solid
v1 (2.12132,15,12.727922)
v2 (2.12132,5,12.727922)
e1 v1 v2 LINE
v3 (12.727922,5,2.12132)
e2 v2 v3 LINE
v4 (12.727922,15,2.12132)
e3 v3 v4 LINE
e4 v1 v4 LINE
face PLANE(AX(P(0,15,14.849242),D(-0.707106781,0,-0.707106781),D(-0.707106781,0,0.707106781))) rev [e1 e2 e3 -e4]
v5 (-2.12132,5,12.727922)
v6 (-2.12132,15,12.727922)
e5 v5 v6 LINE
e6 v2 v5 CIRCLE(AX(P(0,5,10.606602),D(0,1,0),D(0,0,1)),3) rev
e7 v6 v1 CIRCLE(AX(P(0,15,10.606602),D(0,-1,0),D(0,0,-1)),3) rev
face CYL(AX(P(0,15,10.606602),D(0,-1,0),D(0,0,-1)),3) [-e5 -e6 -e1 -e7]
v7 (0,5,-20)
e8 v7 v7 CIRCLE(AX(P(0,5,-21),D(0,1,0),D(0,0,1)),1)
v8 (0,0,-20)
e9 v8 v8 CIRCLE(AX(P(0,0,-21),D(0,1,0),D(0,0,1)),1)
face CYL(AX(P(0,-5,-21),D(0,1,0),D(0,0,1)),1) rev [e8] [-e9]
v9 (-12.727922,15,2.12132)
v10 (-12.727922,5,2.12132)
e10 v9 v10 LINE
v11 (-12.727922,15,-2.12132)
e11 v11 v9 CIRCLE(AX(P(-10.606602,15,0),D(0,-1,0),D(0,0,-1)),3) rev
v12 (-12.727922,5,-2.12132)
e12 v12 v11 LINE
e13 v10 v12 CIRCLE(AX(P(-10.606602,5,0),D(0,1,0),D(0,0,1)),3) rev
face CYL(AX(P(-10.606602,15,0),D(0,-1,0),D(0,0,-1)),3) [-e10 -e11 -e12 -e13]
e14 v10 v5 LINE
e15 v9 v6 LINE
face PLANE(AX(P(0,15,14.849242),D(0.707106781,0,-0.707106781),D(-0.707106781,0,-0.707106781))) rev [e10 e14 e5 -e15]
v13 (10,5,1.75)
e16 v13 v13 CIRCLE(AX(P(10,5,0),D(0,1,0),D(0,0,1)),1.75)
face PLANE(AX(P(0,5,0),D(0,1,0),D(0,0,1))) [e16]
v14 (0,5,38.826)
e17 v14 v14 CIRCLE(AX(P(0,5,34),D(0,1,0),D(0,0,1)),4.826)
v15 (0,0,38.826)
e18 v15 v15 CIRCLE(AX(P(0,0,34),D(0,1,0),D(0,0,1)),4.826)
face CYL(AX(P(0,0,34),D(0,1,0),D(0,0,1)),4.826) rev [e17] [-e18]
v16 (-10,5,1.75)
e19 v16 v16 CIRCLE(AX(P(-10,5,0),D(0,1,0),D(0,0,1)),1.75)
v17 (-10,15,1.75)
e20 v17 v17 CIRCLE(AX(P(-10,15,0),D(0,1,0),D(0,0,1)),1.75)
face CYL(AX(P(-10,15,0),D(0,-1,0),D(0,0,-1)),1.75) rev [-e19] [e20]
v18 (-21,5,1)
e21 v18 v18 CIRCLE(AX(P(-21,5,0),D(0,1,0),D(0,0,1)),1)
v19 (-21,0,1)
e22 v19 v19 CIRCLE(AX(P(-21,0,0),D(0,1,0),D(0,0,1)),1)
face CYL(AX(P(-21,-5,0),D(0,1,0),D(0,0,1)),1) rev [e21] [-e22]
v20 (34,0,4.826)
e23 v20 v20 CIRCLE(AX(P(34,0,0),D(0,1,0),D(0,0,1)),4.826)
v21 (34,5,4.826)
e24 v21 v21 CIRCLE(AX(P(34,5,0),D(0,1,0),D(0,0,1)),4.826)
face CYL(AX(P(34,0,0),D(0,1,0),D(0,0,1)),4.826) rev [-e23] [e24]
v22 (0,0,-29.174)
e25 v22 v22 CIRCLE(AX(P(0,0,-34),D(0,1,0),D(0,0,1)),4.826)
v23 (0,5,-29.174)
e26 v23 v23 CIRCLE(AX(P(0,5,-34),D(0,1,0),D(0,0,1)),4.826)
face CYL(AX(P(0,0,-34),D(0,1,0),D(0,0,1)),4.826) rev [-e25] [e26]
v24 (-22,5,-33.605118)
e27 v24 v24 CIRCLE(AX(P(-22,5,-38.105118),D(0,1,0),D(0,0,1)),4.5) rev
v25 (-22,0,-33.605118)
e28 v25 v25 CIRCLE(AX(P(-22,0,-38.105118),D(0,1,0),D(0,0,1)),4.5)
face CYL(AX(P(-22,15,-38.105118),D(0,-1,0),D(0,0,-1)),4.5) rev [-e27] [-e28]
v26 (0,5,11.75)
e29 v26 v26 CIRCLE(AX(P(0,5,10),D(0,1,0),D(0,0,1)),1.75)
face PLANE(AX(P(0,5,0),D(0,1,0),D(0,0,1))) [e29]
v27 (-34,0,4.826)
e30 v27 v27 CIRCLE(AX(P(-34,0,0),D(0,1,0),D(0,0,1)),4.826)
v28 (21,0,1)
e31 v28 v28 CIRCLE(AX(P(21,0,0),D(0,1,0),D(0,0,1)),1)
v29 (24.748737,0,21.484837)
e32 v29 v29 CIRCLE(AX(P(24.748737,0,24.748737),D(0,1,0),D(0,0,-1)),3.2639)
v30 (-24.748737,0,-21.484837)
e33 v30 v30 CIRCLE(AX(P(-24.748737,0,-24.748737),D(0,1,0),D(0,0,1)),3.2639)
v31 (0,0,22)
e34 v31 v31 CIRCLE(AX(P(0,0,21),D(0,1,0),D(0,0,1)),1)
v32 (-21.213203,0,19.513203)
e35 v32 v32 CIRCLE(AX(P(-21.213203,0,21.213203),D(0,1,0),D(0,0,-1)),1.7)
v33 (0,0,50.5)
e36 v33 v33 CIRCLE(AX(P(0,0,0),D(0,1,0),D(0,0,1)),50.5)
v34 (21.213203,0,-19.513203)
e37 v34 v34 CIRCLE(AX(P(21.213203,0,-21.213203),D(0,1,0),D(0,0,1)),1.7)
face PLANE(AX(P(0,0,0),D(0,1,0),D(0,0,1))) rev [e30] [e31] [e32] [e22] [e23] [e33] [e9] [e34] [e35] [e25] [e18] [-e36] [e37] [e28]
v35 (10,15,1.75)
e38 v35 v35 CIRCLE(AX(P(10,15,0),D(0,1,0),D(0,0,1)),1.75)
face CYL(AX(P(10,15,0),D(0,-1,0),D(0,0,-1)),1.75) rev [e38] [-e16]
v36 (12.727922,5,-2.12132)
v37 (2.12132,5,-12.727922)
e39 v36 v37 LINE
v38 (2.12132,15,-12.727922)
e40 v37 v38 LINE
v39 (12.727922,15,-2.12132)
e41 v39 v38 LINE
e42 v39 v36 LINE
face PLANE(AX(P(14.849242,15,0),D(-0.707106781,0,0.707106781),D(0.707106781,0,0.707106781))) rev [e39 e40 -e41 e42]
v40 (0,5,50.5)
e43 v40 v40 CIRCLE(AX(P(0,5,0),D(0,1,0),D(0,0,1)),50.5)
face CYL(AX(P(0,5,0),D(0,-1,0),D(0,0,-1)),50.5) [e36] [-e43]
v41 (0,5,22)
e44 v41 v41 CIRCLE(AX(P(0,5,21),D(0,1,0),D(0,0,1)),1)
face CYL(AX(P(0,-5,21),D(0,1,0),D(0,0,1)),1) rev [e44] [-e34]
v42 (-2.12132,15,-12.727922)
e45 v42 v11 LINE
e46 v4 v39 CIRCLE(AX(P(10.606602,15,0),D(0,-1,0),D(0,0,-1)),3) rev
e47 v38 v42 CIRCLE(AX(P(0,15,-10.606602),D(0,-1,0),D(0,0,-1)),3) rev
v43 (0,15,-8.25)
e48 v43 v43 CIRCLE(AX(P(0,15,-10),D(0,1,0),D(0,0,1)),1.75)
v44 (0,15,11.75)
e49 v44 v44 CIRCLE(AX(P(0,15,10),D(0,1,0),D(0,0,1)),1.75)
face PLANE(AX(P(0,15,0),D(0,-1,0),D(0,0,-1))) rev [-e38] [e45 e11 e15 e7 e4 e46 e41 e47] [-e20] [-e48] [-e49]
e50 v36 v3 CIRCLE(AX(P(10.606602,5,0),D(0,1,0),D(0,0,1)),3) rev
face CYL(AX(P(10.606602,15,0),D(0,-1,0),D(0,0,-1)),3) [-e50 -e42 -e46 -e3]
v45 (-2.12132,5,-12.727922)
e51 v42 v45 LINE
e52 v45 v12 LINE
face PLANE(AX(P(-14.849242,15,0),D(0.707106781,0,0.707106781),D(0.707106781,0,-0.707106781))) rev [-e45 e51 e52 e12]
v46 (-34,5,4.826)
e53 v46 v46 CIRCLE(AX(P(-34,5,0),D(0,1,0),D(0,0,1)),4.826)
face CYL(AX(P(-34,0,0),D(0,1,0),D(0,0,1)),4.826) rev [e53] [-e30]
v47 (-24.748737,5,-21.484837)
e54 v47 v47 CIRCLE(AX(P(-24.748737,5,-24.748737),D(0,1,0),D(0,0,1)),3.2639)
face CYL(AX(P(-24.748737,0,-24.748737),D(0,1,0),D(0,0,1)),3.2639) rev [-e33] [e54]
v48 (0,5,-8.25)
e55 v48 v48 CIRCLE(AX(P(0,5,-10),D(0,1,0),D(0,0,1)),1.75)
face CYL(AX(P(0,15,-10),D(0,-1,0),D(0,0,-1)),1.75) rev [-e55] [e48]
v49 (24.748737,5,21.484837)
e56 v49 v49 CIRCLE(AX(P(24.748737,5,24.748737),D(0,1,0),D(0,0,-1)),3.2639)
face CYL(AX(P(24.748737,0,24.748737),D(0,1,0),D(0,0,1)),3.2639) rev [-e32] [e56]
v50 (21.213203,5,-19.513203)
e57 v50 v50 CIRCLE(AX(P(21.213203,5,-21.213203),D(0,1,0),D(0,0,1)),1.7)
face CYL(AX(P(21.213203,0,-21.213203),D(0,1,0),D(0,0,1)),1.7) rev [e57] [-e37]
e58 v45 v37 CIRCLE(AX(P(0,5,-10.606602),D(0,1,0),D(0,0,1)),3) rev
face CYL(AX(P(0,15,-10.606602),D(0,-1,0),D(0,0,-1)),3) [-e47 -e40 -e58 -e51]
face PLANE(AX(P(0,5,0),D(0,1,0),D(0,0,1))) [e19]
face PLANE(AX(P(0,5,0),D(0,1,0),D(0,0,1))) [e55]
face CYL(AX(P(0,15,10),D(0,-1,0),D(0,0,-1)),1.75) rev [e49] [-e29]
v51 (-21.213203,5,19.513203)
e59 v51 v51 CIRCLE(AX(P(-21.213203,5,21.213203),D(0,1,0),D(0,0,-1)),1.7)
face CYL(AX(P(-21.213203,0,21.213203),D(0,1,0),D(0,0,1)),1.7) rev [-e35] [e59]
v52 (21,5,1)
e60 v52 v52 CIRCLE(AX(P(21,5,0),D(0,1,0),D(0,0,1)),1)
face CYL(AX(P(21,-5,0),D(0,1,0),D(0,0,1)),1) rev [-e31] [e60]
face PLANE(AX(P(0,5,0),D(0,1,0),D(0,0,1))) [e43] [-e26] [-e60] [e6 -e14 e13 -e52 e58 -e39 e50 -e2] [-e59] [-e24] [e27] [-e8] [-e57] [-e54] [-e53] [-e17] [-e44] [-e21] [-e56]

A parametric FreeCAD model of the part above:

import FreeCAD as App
import Part
import Sketcher

V = App.Vector
Q = App.Units.Quantity


def edges_at(feature, points):
    """Names of the edges that pass closest to the given points."""
    edges = feature.Shape.Edges
    near = lambda p: min(range(len(edges)), key=lambda i: edges[i].distToShape(Part.Vertex(*p))[0])
    return sorted({f"Edge{near(p) + 1}" for p in points})

doc = App.newDocument("Part")
body = doc.addObject("PartDesign::Body", "Body")

# Sketch on XZ plane
sketch1 = body.newObject("Sketcher::SketchObject", "Sketch")
sketch1.AttachmentSupport = (doc.getObject("XZ_Plane"), [""])
sketch1.MapMode = "FlatFace"
sketch1.addGeometry(Part.Circle(V(0, 0, 0), V(0, 0, 1), 50), False)
sketch1.addConstraint([
    Sketcher.Constraint("Coincident", 0, 3, -1, 1),
    Sketcher.Constraint("Diameter", 0, Q("101 mm")),
])
pad1 = body.newObject("PartDesign::Pad", "Pad")
pad1.Profile = sketch1
pad1.Length = 5
pad1.Reversed = True

# Sketch on XZ plane
sketch2 = body.newObject("Sketcher::SketchObject", "Sketch001")
sketch2.AttachmentSupport = (doc.getObject("XZ_Plane"), [""])
sketch2.MapMode = "FlatFace"
sketch2.AttachmentOffset = App.Placement(V(0, 0, -5), App.Rotation())
sketch2.addGeometry([
    Part.LineSegment(V(0, 14.8, 0), V(14.8, 0, 0)),  # 0
    Part.LineSegment(V(14.8, 0, 0), V(0, -14.8, 0)),  # 1
    Part.LineSegment(V(0, -14.8, 0), V(-14.8, 0, 0)),  # 2
    Part.LineSegment(V(-14.8, 0, 0), V(0, 14.8, 0)),  # 3
    Part.Circle(V(0, 10, 0), V(0, 0, 1), 1.8),  # 4
    Part.Circle(V(-10, 0, 0), V(0, 0, 1), 1.8),  # 5
    Part.Circle(V(10, 0, 0), V(0, 0, 1), 1.8),  # 6
    Part.Circle(V(0, -10, 0), V(0, 0, 1), 1.8),  # 7
], False)
sketch2.addConstraint([
    Sketcher.Constraint("Coincident", 0, 2, 1, 1),
    Sketcher.Constraint("Coincident", 1, 2, 2, 1),
    Sketcher.Constraint("Coincident", 2, 2, 3, 1),
    Sketcher.Constraint("Coincident", 3, 2, 0, 1),
    Sketcher.Constraint("Equal", 4, 5),
    Sketcher.Constraint("Equal", 5, 6),
    Sketcher.Constraint("Equal", 6, 7),
    Sketcher.Constraint("Symmetric", 5, 3, 6, 3, -1, 1),
    Sketcher.Constraint("Symmetric", 4, 3, 7, 3, -1, 1),
    Sketcher.Constraint("Symmetric", 0, 2, 2, 2, -1, 1),
    Sketcher.Constraint("Symmetric", 1, 2, 3, 2, -1, 1),
    Sketcher.Constraint("PointOnObject", 4, 3, -2),
    Sketcher.Constraint("PointOnObject", 5, 3, -1),
    Sketcher.Constraint("PointOnObject", 0, 2, -1),
    Sketcher.Constraint("PointOnObject", 1, 2, -2),
    Sketcher.Constraint("Perpendicular", 0, 1),
    Sketcher.Constraint("Diameter", 4, Q("3.5 mm")),
    Sketcher.Constraint("Distance", 0, Q("21 mm")),
    Sketcher.Constraint("DistanceY", -1, 1, 4, 3, Q("10 mm")),
    Sketcher.Constraint("DistanceX", 5, 3, -1, 1, Q("10 mm")),
])
pad2 = body.newObject("PartDesign::Pad", "Pad001")
pad2.Profile = sketch2
pad2.Length = 10
pad2.Reversed = True

# Sketch on XZ plane
sketch3 = body.newObject("Sketcher::SketchObject", "Sketch002")
sketch3.AttachmentSupport = (doc.getObject("XZ_Plane"), [""])
sketch3.MapMode = "FlatFace"
sketch3.AttachmentOffset = App.Placement(V(0, 0, -5), App.Rotation())
sketch3.addGeometry([
    Part.Circle(V(21.2, -21.2, 0), V(0, 0, 1), 1.7),
    Part.Circle(V(-21.2, 21.2, 0), V(0, 0, 1), 1.7),
    Part.Circle(V(-24.7, -24.7, 0), V(0, 0, 1), 3.3),
    Part.Circle(V(24.7, 24.7, 0), V(0, 0, 1), 3.3),
], False)
sketch3.addConstraint([
    Sketcher.Constraint("Equal", 0, 1),
    Sketcher.Constraint("Equal", 2, 3),
    Sketcher.Constraint("Symmetric", 0, 3, 1, 3, -1, 1),
    Sketcher.Constraint("Symmetric", 2, 3, 3, 3, -1, 1),
    Sketcher.Constraint("Diameter", 0, Q("3.4 mm")),
    Sketcher.Constraint("Diameter", 2, Q("6.5278 mm")),
    Sketcher.Constraint("DistanceX", 2, 3, 0, 3, Q("45.961941 mm")),
    Sketcher.Constraint("DistanceY", 2, 3, 1, 3, Q("45.961941 mm")),
    Sketcher.Constraint("DistanceX", -1, 1, 0, 3, Q("21.213203 mm")),
    Sketcher.Constraint("DistanceY", 0, 3, -1, 1, Q("21.213203 mm")),
])
pocket1 = body.newObject("PartDesign::Pocket", "Pocket")
pocket1.Profile = sketch3
pocket1.Type = "ThroughAll"
pocket1.Reversed = True

# Sketch on XZ plane
sketch4 = body.newObject("Sketcher::SketchObject", "Sketch003")
sketch4.AttachmentSupport = (doc.getObject("XZ_Plane"), [""])
sketch4.MapMode = "FlatFace"
sketch4.AttachmentOffset = App.Placement(V(0, 0, -5), App.Rotation())
sketch4.addGeometry([
    Part.Circle(V(34, 0, 0), V(0, 0, 1), 4.8),
    Part.Circle(V(0, -34, 0), V(0, 0, 1), 4.8),
    Part.Circle(V(-34, 0, 0), V(0, 0, 1), 4.8),
    Part.Circle(V(0, 34, 0), V(0, 0, 1), 4.8),
], False)
sketch4.addConstraint([
    Sketcher.Constraint("Equal", 0, 1),
    Sketcher.Constraint("Equal", 1, 2),
    Sketcher.Constraint("Equal", 2, 3),
    Sketcher.Constraint("Symmetric", 0, 3, 2, 3, -1, 1),
    Sketcher.Constraint("Symmetric", 1, 3, 3, 3, -1, 1),
    Sketcher.Constraint("PointOnObject", 0, 3, -1),
    Sketcher.Constraint("PointOnObject", 1, 3, -2),
    Sketcher.Constraint("Diameter", 0, Q("9.652 mm")),
    Sketcher.Constraint("DistanceX", -1, 1, 0, 3, Q("34 mm")),
    Sketcher.Constraint("DistanceY", 1, 3, -1, 1, Q("34 mm")),
])
pocket2 = body.newObject("PartDesign::Pocket", "Pocket001")
pocket2.Profile = sketch4
pocket2.Type = "ThroughAll"
pocket2.Reversed = True

# Sketch on XZ plane
sketch5 = body.newObject("Sketcher::SketchObject", "Sketch004")
sketch5.AttachmentSupport = (doc.getObject("XZ_Plane"), [""])
sketch5.MapMode = "FlatFace"
sketch5.AttachmentOffset = App.Placement(V(0, 0, -5), App.Rotation())
sketch5.addGeometry([
    Part.Circle(V(0, -21, 0), V(0, 0, 1), 1),
    Part.Circle(V(-21, 0, 0), V(0, 0, 1), 1),
    Part.Circle(V(21, 0, 0), V(0, 0, 1), 1),
    Part.Circle(V(0, 21, 0), V(0, 0, 1), 1),
], False)
sketch5.addConstraint([
    Sketcher.Constraint("Equal", 0, 1),
    Sketcher.Constraint("Equal", 1, 2),
    Sketcher.Constraint("Equal", 2, 3),
    Sketcher.Constraint("Symmetric", 1, 3, 2, 3, -1, 1),
    Sketcher.Constraint("Symmetric", 0, 3, 3, 3, -1, 1),
    Sketcher.Constraint("PointOnObject", 0, 3, -2),
    Sketcher.Constraint("PointOnObject", 1, 3, -1),
    Sketcher.Constraint("Diameter", 0, Q("2 mm")),
    Sketcher.Constraint("DistanceY", 0, 3, -1, 1, Q("21 mm")),
    Sketcher.Constraint("DistanceX", 1, 3, -1, 1, Q("21 mm")),
])
pocket3 = body.newObject("PartDesign::Pocket", "Pocket002")
pocket3.Profile = sketch5
pocket3.Length = 10
pocket3.Reversed = True
doc.recompute()

fillet = body.newObject("PartDesign::Fillet", "Fillet")
fillet.Base = (pocket3, edges_at(pocket3, [
    (-14.849, 10, 0),
    (0, 10, 14.849),
    (14.849, 10, 0),
    (0, 10, -14.849),
]))
fillet.Radius = 3

# Sketch on XZ plane
sketch6 = body.newObject("Sketcher::SketchObject", "Sketch005")
sketch6.AttachmentSupport = (doc.getObject("XZ_Plane"), [""])
sketch6.MapMode = "FlatFace"
sketch6.addGeometry(Part.Circle(V(-22, -38.1, 0), V(0, 0, 1), 4.5), False)
sketch6.addConstraint([
    Sketcher.Constraint("Diameter", 0, Q("9 mm")),
    Sketcher.Constraint("DistanceX", 0, 3, -1, 1, Q("22 mm")),
    Sketcher.Constraint("DistanceY", 0, 3, -1, 1, Q("38.105118 mm")),
])
pocket4 = body.newObject("PartDesign::Pocket", "Pocket003")
pocket4.Profile = sketch6
pocket4.Type = "ThroughAll"

doc.recompute()
